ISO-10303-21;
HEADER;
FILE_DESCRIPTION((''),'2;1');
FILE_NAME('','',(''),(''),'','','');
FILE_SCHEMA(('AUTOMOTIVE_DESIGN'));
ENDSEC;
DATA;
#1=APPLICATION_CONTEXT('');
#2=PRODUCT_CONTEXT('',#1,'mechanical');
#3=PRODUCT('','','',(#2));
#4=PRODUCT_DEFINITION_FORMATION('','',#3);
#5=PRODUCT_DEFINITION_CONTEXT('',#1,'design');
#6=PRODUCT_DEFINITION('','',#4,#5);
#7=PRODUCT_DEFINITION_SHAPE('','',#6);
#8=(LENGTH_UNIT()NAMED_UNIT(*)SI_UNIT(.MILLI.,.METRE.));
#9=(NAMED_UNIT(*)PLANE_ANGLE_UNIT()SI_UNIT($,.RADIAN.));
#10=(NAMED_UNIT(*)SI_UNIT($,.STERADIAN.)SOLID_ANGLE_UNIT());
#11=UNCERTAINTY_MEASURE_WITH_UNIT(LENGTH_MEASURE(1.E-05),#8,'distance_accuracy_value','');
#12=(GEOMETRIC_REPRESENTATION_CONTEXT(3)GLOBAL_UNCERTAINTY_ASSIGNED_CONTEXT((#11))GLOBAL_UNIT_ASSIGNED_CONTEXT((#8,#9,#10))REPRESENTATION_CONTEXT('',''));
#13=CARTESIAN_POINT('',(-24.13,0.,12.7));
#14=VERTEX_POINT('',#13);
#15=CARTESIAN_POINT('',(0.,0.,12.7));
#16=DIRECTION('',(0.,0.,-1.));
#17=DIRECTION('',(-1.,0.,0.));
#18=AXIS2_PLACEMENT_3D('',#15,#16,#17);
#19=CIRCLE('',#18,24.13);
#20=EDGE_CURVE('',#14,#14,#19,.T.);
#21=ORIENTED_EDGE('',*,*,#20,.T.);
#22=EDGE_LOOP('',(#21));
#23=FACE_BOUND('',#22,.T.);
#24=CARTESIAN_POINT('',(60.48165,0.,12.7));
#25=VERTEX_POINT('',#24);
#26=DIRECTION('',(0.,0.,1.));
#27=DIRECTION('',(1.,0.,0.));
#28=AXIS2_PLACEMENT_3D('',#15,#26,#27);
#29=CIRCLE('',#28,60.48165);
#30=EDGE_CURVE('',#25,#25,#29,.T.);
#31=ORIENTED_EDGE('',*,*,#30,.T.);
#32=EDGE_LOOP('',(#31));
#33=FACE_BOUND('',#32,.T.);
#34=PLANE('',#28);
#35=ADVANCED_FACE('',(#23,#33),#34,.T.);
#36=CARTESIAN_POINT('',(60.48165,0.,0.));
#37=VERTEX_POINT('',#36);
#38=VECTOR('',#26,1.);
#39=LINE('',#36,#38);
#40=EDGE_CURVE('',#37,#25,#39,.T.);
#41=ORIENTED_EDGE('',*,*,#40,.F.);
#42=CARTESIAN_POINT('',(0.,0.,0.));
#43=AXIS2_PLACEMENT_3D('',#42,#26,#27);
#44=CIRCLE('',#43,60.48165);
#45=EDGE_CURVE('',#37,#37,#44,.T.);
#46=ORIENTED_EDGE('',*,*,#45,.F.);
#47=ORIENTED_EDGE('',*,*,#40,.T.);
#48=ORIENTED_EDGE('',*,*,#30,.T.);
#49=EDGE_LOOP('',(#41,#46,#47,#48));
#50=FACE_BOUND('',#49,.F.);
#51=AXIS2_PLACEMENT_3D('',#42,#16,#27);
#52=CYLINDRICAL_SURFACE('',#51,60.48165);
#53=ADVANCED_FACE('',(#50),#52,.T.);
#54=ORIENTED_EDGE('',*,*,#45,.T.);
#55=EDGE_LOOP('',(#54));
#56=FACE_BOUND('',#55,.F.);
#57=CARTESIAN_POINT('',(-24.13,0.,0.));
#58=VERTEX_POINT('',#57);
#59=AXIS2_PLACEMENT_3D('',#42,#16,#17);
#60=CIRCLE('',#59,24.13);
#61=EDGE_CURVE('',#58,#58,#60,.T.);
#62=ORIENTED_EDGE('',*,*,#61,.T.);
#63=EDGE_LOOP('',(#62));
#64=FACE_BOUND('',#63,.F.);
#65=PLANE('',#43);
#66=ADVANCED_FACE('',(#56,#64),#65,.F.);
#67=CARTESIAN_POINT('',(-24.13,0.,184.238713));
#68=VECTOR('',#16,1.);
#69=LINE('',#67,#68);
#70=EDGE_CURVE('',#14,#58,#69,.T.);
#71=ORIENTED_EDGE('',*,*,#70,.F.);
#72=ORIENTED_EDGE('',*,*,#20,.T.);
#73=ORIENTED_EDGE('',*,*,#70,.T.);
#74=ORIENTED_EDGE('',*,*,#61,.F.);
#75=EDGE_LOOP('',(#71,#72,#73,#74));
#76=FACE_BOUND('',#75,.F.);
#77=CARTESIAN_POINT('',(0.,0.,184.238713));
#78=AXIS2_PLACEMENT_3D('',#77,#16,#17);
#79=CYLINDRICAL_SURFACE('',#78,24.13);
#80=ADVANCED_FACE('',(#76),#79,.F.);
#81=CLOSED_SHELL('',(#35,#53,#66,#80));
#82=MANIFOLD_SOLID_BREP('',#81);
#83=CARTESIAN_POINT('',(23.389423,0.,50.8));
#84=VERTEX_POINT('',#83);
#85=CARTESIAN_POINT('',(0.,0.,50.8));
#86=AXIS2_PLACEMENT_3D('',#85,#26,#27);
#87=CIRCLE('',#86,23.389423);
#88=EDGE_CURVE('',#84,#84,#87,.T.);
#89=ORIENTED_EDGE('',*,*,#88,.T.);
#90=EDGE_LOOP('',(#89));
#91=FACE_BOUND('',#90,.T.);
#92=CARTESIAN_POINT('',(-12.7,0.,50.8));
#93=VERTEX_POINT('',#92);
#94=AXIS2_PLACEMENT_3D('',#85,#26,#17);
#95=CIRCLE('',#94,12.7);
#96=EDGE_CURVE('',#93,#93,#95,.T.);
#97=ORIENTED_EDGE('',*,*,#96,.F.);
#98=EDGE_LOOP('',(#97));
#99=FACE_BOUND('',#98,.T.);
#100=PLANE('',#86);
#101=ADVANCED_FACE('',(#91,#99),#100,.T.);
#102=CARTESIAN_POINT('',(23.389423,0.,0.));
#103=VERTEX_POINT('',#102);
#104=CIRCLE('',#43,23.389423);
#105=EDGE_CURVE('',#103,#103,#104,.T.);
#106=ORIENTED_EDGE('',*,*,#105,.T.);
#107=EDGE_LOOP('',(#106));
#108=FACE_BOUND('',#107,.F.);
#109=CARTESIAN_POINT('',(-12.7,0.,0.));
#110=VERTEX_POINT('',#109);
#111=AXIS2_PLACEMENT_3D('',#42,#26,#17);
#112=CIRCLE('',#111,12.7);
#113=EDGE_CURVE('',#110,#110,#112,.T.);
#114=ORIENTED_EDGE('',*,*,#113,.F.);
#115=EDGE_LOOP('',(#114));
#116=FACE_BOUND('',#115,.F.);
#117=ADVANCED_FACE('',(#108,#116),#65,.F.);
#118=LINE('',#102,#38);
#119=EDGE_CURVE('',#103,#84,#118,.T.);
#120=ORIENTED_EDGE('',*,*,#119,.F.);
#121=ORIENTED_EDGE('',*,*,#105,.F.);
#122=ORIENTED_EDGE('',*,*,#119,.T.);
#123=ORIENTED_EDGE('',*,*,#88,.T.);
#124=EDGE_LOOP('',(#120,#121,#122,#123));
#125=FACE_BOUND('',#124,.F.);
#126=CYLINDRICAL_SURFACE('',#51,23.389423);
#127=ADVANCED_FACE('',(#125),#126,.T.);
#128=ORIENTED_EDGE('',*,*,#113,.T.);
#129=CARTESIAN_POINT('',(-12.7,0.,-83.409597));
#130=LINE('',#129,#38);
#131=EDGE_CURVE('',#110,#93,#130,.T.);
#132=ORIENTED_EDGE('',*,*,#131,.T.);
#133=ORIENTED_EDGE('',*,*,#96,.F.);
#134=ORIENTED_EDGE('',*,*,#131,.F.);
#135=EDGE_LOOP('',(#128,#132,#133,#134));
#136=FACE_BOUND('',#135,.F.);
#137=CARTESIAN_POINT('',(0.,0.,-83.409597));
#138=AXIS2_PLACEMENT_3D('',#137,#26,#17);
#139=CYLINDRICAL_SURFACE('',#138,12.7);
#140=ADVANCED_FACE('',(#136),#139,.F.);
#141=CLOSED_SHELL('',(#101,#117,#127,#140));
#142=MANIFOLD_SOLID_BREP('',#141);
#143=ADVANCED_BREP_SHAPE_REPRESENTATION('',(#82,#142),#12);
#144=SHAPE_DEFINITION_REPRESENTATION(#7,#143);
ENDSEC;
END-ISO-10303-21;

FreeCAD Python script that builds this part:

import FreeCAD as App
import Part
import Sketcher

V = App.Vector
Q = App.Units.Quantity

doc = App.newDocument("Part")
body = doc.addObject("PartDesign::Body", "Body")

# Sketch on XY plane
sketch1 = body.newObject("Sketcher::SketchObject", "Sketch")
sketch1.AttachmentSupport = (doc.getObject("XY_Plane"), [""])
sketch1.MapMode = "FlatFace"
sketch1.addGeometry(Part.Circle(V(0, 0, 0), V(0, 0, 1), 60.48165), False)
sketch1.addConstraint([
    Sketcher.Constraint("Coincident", 0, 3, -1, 1),
    Sketcher.Constraint("Diameter", 0, Q("120.9633 mm")),
])
pad1 = body.newObject("PartDesign::Pad", "Pad")
pad1.Profile = sketch1
pad1.Length = Q("0.5 in")

# Sketch on XY plane
sketch2 = body.newObject("Sketcher::SketchObject", "Sketch001")
sketch2.AttachmentSupport = (doc.getObject("XY_Plane"), [""])
sketch2.MapMode = "FlatFace"
sketch2.AttachmentOffset = App.Placement(V(0, 0, 0.5 * 25.4), App.Rotation())
sketch2.addGeometry(Part.Circle(V(0, 0, 0), V(0, 0, 1), 24.13), False)
sketch2.addConstraint([
    Sketcher.Constraint("Coincident", 0, 3, -1, 1),
    Sketcher.Constraint("Diameter", 0, Q("1.9 in")),
])
doc.recompute()
hole = body.newObject("PartDesign::Hole", "Hole")
hole.Profile = sketch2
hole.ThreadType = "None"
hole.Diameter = Q("1.9 in")
hole.DepthType = "ThroughAll"
body2 = doc.addObject("PartDesign::Body", "Body001")

# Sketch on XY plane
sketch3 = body2.newObject("Sketcher::SketchObject", "Sketch002")
sketch3.AttachmentSupport = (doc.getObject("XY_Plane001"), [""])
sketch3.MapMode = "FlatFace"
sketch3.addGeometry(Part.Circle(V(0, 0, 0), V(0, 0, 1), 23.389423), False)
sketch3.addConstraint([
    Sketcher.Constraint("Coincident", 0, 3, -1, 1),
    Sketcher.Constraint("Diameter", 0, Q("46.778846 mm")),
])
pad2 = body2.newObject("PartDesign::Pad", "Pad001")
pad2.Profile = sketch3
pad2.Length = Q("2 in")

# Sketch on XY plane
sketch4 = body2.newObject("Sketcher::SketchObject", "Sketch003")
sketch4.AttachmentSupport = (doc.getObject("XY_Plane001"), [""])
sketch4.MapMode = "FlatFace"
sketch4.addGeometry(Part.Circle(V(0, 0, 0), V(0, 0, 1), 12.7), False)
sketch4.addConstraint([
    Sketcher.Constraint("Coincident", 0, 3, -1, 1),
    Sketcher.Constraint("Diameter", 0, Q("1 in")),
])
doc.recompute()
hole2 = body2.newObject("PartDesign::Hole", "Hole001")
hole2.Profile = sketch4
hole2.ThreadType = "None"
hole2.Diameter = Q("1 in")
hole2.DepthType = "ThroughAll"
hole2.Reversed = True

doc.recompute()
